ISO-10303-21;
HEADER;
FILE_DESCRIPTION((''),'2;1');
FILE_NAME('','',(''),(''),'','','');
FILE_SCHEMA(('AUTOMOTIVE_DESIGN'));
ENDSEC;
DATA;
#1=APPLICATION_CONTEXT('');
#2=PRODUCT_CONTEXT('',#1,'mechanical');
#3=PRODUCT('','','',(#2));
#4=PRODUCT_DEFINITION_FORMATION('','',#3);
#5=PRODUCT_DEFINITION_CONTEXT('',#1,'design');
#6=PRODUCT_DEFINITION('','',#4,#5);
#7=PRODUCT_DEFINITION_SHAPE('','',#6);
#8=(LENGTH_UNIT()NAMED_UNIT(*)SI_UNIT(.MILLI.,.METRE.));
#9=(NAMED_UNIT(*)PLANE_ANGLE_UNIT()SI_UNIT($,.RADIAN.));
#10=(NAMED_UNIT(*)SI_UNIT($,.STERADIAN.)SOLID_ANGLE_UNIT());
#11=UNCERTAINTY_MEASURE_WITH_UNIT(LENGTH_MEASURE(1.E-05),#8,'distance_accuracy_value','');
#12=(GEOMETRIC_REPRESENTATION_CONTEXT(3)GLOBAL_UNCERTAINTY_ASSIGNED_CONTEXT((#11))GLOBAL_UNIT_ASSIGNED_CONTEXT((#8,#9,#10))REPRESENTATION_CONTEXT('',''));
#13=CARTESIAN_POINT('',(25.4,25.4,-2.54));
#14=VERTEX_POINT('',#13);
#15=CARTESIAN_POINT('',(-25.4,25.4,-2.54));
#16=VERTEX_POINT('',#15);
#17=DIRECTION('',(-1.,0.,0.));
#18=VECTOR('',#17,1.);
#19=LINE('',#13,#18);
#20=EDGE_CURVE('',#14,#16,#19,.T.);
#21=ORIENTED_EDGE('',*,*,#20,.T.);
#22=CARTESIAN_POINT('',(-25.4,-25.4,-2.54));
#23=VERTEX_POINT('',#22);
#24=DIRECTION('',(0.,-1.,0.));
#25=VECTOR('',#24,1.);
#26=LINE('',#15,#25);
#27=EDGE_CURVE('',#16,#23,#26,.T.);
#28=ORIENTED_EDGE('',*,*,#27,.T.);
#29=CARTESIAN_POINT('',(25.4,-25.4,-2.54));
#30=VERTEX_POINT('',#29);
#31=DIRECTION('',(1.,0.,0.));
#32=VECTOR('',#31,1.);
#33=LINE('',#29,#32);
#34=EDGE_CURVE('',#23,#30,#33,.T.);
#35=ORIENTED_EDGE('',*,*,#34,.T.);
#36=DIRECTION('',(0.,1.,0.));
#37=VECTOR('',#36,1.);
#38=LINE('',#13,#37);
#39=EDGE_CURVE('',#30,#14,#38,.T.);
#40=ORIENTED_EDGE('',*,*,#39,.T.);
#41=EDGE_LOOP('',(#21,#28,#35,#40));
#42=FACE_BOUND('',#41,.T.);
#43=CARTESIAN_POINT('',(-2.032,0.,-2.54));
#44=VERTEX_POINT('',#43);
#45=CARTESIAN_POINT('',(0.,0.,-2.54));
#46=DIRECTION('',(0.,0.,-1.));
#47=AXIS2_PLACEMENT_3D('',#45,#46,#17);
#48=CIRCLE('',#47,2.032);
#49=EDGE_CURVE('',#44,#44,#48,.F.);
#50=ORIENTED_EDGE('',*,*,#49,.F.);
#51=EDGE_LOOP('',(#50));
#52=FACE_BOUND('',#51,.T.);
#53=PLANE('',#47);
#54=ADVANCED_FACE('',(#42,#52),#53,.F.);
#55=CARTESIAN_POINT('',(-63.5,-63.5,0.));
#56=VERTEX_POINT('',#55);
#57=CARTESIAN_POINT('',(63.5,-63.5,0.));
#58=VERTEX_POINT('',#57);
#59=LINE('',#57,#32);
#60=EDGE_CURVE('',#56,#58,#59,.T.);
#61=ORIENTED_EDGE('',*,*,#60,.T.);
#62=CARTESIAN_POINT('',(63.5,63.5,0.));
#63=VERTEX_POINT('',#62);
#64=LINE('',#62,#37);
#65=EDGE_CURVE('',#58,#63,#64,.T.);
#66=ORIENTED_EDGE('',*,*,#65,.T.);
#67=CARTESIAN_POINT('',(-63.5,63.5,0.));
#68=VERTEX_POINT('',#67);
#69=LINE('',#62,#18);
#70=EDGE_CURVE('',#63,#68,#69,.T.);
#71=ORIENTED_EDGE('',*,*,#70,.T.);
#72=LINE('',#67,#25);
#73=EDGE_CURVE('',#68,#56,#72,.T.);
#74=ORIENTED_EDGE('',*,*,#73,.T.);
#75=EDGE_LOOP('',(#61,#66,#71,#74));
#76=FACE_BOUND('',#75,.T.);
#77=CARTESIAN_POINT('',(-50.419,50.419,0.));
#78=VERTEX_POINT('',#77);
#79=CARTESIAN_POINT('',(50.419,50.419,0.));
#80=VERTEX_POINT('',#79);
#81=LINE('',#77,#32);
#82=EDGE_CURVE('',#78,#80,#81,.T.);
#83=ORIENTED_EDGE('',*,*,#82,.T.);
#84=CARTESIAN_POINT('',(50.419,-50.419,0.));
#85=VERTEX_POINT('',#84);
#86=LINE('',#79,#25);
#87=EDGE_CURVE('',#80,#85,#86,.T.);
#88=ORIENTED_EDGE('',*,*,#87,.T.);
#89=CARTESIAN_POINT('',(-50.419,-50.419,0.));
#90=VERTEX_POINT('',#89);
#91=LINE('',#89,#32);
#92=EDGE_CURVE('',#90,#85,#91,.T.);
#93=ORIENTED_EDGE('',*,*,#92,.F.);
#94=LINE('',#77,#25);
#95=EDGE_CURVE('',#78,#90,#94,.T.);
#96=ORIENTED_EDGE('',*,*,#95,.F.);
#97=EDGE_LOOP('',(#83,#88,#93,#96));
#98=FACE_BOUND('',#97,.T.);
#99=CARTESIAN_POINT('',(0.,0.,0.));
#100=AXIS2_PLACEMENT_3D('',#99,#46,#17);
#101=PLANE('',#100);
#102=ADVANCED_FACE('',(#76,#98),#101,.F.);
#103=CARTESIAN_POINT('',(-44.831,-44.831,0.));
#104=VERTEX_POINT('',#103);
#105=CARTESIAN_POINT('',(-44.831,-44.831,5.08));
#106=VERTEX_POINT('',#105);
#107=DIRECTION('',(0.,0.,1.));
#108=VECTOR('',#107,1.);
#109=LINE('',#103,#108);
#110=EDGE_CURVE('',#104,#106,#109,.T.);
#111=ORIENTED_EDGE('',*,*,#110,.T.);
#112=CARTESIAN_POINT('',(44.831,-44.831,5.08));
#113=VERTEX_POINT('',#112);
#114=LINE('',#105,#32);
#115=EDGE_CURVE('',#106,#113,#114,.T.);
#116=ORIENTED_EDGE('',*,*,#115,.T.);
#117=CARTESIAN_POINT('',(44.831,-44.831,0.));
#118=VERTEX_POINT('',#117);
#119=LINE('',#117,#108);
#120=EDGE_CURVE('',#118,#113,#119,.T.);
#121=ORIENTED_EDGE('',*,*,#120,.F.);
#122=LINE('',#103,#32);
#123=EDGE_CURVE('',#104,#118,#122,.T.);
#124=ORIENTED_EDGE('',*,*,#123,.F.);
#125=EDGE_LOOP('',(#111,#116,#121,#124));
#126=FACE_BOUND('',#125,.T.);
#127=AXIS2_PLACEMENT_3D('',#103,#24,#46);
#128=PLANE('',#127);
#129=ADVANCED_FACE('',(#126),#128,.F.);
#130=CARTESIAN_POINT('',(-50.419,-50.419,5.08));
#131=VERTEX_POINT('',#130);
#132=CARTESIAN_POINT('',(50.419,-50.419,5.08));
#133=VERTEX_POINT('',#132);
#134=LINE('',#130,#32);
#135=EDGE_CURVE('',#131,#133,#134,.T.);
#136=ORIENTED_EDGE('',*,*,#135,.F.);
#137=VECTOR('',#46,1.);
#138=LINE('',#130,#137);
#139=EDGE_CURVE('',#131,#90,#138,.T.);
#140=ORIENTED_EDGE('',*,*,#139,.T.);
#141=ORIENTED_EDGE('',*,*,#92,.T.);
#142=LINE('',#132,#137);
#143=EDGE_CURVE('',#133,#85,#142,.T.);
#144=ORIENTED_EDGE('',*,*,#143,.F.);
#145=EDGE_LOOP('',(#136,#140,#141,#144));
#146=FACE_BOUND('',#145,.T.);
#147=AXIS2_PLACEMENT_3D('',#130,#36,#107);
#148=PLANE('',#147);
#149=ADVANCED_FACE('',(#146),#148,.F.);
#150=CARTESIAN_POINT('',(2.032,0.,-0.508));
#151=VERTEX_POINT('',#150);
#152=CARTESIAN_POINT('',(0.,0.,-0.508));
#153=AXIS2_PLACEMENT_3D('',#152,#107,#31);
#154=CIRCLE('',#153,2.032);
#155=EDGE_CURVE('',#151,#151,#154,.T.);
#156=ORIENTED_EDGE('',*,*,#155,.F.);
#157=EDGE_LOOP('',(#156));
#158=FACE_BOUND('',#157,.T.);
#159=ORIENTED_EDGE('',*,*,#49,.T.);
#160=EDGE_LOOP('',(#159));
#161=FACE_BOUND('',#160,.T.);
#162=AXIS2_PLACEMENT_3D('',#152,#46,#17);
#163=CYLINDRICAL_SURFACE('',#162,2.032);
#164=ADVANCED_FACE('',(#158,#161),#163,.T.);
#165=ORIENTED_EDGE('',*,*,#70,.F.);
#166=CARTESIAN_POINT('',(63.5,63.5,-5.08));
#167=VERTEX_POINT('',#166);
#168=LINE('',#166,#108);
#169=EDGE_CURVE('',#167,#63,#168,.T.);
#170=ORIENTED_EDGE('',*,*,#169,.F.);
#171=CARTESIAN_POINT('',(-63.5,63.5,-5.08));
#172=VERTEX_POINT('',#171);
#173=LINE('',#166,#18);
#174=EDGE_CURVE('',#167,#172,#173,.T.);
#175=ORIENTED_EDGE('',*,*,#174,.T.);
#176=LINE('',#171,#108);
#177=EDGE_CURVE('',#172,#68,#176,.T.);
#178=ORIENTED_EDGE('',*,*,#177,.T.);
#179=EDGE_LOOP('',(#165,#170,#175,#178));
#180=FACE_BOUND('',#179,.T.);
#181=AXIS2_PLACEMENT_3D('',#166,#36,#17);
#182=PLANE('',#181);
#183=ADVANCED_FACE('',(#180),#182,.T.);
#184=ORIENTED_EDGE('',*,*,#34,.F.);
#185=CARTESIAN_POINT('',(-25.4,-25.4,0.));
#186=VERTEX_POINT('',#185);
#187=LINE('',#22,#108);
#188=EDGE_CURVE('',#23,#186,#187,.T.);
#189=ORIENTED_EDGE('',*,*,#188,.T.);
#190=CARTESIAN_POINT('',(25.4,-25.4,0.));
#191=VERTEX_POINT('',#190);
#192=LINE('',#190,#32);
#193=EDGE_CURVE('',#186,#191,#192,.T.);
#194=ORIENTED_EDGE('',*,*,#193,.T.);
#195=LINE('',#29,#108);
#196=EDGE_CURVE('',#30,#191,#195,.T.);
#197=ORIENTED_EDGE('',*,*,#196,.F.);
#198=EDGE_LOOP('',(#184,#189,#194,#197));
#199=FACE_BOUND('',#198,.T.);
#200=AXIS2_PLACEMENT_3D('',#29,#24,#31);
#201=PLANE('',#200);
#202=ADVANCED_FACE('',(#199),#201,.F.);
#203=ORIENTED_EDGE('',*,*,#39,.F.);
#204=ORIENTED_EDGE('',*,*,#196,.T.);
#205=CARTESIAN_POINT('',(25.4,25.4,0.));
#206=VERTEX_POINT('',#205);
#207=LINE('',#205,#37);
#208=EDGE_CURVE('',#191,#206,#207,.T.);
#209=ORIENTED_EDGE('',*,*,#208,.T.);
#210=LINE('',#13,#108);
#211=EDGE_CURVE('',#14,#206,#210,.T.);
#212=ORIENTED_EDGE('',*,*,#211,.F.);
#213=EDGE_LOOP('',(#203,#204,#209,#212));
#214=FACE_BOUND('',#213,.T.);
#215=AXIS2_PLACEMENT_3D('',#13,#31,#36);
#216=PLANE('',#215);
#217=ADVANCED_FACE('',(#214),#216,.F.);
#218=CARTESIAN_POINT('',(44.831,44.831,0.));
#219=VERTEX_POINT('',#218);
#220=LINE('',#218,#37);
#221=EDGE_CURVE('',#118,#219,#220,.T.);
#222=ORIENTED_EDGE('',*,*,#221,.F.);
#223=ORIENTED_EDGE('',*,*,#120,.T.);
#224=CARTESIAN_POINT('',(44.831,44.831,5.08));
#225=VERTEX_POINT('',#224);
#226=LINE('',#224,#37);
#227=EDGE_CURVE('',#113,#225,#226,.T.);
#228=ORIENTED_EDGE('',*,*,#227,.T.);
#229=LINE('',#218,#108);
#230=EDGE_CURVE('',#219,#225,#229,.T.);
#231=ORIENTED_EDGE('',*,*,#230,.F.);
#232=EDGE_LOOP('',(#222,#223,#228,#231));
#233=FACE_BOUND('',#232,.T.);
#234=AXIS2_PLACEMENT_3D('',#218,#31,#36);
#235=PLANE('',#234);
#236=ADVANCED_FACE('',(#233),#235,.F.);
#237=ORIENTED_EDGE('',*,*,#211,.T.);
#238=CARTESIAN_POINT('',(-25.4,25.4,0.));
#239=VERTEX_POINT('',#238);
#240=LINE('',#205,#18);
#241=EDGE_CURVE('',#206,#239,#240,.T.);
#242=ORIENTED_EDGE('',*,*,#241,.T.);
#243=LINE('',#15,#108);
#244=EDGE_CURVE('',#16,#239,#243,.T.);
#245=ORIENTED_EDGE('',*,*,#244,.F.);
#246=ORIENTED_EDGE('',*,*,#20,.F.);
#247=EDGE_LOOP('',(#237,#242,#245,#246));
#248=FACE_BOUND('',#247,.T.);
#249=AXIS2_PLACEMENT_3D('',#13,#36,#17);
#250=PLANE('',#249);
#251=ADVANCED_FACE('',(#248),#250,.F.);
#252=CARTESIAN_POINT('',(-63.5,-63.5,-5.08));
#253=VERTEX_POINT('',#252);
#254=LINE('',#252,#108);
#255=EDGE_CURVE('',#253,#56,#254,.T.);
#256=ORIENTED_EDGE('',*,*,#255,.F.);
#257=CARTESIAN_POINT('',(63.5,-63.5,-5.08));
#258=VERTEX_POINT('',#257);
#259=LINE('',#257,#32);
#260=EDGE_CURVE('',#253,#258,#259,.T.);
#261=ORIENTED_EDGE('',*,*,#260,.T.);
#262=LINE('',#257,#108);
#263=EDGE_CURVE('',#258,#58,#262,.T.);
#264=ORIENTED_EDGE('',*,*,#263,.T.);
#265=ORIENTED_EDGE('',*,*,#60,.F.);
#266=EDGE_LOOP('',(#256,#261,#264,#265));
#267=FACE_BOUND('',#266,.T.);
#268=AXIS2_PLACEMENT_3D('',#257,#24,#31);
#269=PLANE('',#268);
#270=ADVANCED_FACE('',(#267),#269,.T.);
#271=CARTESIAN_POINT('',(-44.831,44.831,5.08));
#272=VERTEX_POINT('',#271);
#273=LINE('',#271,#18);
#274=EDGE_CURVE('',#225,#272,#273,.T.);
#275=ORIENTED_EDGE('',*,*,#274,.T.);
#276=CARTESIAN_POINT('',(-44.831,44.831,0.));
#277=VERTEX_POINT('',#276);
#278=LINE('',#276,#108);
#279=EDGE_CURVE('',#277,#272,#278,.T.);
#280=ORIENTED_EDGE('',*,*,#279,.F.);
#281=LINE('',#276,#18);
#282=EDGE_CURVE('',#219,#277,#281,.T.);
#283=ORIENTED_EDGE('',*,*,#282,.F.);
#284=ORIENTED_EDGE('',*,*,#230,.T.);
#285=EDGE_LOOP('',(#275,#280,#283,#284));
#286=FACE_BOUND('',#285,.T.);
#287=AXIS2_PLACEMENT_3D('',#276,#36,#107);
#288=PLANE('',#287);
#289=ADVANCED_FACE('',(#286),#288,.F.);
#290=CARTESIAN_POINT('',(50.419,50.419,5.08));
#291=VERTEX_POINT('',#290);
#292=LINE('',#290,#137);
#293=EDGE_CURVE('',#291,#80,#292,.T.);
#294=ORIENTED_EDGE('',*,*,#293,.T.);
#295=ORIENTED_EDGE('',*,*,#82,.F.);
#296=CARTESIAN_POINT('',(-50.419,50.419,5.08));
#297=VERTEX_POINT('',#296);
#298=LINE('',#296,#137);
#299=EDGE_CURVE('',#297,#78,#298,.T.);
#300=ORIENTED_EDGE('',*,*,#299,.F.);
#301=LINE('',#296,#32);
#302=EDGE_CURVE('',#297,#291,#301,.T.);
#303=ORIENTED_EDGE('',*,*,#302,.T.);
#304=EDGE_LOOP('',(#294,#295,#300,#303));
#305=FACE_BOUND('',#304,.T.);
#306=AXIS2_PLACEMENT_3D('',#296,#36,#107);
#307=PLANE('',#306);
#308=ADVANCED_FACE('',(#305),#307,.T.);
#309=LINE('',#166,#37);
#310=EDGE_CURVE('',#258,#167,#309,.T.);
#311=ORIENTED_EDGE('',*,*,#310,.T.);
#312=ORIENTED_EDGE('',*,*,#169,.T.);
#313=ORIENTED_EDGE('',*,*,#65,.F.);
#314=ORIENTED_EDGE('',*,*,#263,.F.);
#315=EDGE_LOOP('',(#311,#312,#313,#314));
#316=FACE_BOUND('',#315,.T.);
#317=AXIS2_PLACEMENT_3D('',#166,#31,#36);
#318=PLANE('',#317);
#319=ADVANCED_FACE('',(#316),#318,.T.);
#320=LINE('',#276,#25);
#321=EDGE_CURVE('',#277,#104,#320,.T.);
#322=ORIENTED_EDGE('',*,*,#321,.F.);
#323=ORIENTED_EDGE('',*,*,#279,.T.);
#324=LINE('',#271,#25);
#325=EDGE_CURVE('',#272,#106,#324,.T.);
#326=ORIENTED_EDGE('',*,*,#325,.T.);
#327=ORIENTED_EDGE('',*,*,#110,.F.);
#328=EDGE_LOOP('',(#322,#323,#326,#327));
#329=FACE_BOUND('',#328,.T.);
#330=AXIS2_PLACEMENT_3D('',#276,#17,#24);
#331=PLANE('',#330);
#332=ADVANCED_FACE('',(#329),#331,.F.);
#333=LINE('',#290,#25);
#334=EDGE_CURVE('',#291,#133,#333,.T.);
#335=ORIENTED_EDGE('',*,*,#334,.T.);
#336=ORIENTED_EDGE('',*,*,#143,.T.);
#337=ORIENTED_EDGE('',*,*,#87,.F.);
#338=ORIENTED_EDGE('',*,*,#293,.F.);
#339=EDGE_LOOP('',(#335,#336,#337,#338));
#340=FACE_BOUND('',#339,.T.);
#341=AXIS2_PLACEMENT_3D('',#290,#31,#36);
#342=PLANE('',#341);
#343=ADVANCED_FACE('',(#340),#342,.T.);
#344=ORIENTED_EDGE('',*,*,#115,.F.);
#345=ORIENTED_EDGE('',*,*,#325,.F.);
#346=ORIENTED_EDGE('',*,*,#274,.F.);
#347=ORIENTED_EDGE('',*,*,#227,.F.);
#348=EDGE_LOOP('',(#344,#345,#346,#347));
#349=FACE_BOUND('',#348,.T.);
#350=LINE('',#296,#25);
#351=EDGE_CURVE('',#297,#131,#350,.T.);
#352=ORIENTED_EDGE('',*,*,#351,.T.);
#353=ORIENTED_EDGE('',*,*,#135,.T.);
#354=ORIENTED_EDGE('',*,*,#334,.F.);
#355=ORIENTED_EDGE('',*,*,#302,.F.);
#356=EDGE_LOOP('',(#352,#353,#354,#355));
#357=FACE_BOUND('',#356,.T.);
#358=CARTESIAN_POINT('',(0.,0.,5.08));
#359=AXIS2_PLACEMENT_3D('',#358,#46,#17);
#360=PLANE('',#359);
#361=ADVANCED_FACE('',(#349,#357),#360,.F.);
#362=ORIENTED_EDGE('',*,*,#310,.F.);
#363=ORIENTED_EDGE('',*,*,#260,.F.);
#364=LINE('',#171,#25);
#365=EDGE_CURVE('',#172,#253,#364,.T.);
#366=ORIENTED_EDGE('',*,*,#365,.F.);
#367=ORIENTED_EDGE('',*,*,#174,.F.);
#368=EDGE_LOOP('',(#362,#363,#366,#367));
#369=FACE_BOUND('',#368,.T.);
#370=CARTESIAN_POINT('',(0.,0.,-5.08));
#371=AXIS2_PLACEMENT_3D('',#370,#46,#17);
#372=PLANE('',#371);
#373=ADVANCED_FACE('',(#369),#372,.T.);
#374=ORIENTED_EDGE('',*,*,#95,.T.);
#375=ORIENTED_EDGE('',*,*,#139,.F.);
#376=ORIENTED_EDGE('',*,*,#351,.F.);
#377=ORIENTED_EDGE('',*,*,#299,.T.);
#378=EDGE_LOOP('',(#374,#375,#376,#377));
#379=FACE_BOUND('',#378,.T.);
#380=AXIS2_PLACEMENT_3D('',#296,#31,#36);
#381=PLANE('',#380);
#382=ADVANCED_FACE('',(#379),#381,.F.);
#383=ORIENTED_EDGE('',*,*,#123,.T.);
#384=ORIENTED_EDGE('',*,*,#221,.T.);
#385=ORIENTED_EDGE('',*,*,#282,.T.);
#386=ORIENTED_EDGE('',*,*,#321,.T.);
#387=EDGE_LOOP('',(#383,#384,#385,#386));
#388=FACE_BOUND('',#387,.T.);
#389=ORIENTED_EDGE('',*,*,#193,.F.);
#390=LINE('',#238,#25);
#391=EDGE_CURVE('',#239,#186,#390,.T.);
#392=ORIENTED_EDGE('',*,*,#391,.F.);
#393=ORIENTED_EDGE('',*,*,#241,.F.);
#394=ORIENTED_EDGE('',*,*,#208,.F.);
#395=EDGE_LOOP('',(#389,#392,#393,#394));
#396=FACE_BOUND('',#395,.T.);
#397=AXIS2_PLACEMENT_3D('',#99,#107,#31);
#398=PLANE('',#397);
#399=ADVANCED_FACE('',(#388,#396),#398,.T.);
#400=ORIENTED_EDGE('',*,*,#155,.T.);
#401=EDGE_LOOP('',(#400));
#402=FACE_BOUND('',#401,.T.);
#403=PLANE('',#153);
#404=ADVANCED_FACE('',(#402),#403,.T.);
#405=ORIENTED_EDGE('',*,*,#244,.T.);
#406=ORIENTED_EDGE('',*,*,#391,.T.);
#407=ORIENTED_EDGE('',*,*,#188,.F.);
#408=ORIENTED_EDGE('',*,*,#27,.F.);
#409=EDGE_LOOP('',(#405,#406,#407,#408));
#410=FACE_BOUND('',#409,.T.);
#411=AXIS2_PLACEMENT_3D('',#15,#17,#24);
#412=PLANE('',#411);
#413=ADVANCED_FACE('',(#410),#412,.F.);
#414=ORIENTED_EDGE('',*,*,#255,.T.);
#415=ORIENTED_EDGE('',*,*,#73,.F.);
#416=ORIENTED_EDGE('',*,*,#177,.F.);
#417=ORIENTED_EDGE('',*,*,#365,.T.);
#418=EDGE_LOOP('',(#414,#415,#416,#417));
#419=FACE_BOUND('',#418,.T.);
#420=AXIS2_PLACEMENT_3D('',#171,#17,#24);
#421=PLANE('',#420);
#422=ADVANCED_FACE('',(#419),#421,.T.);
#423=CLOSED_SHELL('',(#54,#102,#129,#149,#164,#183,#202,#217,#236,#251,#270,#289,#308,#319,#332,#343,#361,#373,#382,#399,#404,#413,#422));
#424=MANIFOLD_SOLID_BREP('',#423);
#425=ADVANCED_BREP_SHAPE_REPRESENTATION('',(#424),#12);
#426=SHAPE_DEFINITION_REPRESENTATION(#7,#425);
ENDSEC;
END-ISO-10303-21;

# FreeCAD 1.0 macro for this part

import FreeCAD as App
import Part
import Sketcher
from FreeCAD import Vector
Q = App.Units.Quantity


def add_polygon(sketch, points):
    """Adds a closed chain of lines whose ends are joined by coincident constraints."""
    first, n = sketch.GeometryCount, len(points)
    for a, b in zip(points, points[1:] + points[:1]):
        sketch.addGeometry(Part.LineSegment(App.Vector(*a, 0), App.Vector(*b, 0)), False)
    for i in range(n):
        sketch.addConstraint(Sketcher.Constraint("Coincident", first + i, 2, first + (i + 1) % n, 1))

doc = App.newDocument("Part")
body = doc.addObject("PartDesign::Body", "Body")

# Sketch on XY plane
sketch1 = body.newObject("Sketcher::SketchObject", "Sketch")
sketch1.AttachmentSupport = (doc.getObject("XY_Plane"), [""])
sketch1.MapMode = "FlatFace"
add_polygon(sketch1, [(-63.5, 63.5), (-63.5, -63.5), (63.5, -63.5), (63.5, 63.5)])  # lines 0-3
sketch1.addConstraint(Sketcher.Constraint("Vertical", 0))
sketch1.addConstraint(Sketcher.Constraint("Horizontal", 1))
sketch1.addConstraint(Sketcher.Constraint("Vertical", 2))
sketch1.addConstraint(Sketcher.Constraint("Horizontal", 3))
sketch1.addConstraint(Sketcher.Constraint("Symmetric", 0, 2, 2, 2, -1, 1))
sketch1.addConstraint(Sketcher.Constraint("Equal", 3, 0))
sketch1.addConstraint(Sketcher.Constraint("DistanceX", 1, 1, 1, 2, Q("5 in")))
pad1 = body.newObject("PartDesign::Pad", "Pad")
pad1.Profile = sketch1
pad1.Length = Q("0.2 in")
pad1.Reversed = True

# Sketch on XY plane
sketch2 = body.newObject("Sketcher::SketchObject", "Sketch001")
sketch2.AttachmentSupport = (doc.getObject("XY_Plane"), [""])
sketch2.MapMode = "FlatFace"
add_polygon(sketch2, [(-50.419, 50.419), (-50.419, -50.419), (50.419, -50.419), (50.419, 50.419)])  # lines 0-3
sketch2.addConstraint(Sketcher.Constraint("Vertical", 0))
sketch2.addConstraint(Sketcher.Constraint("Horizontal", 1))
sketch2.addConstraint(Sketcher.Constraint("Vertical", 2))
sketch2.addConstraint(Sketcher.Constraint("Horizontal", 3))
sketch2.addConstraint(Sketcher.Constraint("Symmetric", 0, 2, 2, 2, -1, 1))
sketch2.addConstraint(Sketcher.Constraint("Equal", 3, 0))
sketch2.addConstraint(Sketcher.Constraint("DistanceX", 1, 1, 1, 2, Q("3.97 in")))
pad2 = body.newObject("PartDesign::Pad", "Pad001")
pad2.Profile = sketch2
pad2.Length = Q("0.2 in")

# Sketch on XY plane
sketch3 = body.newObject("Sketcher::SketchObject", "Sketch002")
sketch3.AttachmentSupport = (doc.getObject("XY_Plane"), [""])
sketch3.MapMode = "FlatFace"
sketch3.AttachmentOffset = App.Placement(Vector(0, 0, 0.2 * 25.4), App.Rotation())
add_polygon(sketch3, [(-44.831, 44.831), (-44.831, -44.831), (44.831, -44.831), (44.831, 44.831)])  # lines 0-3
sketch3.addConstraint(Sketcher.Constraint("Vertical", 0))
sketch3.addConstraint(Sketcher.Constraint("Horizontal", 1))
sketch3.addConstraint(Sketcher.Constraint("Vertical", 2))
sketch3.addConstraint(Sketcher.Constraint("Horizontal", 3))
sketch3.addConstraint(Sketcher.Constraint("Symmetric", 0, 2, 2, 2, -1, 1))
sketch3.addConstraint(Sketcher.Constraint("Equal", 3, 0))
sketch3.addConstraint(Sketcher.Constraint("DistanceX", 1, 1, 1, 2, Q("3.53 in")))
pocket1 = body.newObject("PartDesign::Pocket", "Pocket")
pocket1.Profile = sketch3
pocket1.Length = Q("0.2 in")

# Sketch on XY plane
sketch4 = body.newObject("Sketcher::SketchObject", "Sketch003")
sketch4.AttachmentSupport = (doc.getObject("XY_Plane"), [""])
sketch4.MapMode = "FlatFace"
add_polygon(sketch4, [(-25.4, 25.4), (-25.4, -25.4), (25.4, -25.4), (25.4, 25.4)])  # lines 0-3
sketch4.addConstraint(Sketcher.Constraint("Vertical", 0))
sketch4.addConstraint(Sketcher.Constraint("Horizontal", 1))
sketch4.addConstraint(Sketcher.Constraint("Vertical", 2))
sketch4.addConstraint(Sketcher.Constraint("Horizontal", 3))
sketch4.addConstraint(Sketcher.Constraint("Symmetric", 0, 2, 2, 2, -1, 1))
sketch4.addConstraint(Sketcher.Constraint("Equal", 3, 0))
sketch4.addConstraint(Sketcher.Constraint("DistanceX", 1, 1, 1, 2, Q("2 in")))
pocket2 = body.newObject("PartDesign::Pocket", "Pocket001")
pocket2.Profile = sketch4
pocket2.Length = Q("0.1 in")

# Sketch on XY plane
sketch5 = body.newObject("Sketcher::SketchObject", "Sketch004")
sketch5.AttachmentSupport = (doc.getObject("XY_Plane"), [""])
sketch5.MapMode = "FlatFace"
sketch5.AttachmentOffset = App.Placement(Vector(0, 0, -0.1 * 25.4), App.Rotation())
sketch5.addGeometry(Part.Circle(Vector(0, 0, 0), Vector(0, 0, 1), 2.032), False)
sketch5.addConstraint(Sketcher.Constraint("Coincident", 0, 3, -1, 1))
sketch5.addConstraint(Sketcher.Constraint("Diameter", 0, Q("0.16 in")))
pad3 = body.newObject("PartDesign::Pad", "Pad002")
pad3.Profile = sketch5
pad3.Length = Q("0.08 in")

doc.recompute()
